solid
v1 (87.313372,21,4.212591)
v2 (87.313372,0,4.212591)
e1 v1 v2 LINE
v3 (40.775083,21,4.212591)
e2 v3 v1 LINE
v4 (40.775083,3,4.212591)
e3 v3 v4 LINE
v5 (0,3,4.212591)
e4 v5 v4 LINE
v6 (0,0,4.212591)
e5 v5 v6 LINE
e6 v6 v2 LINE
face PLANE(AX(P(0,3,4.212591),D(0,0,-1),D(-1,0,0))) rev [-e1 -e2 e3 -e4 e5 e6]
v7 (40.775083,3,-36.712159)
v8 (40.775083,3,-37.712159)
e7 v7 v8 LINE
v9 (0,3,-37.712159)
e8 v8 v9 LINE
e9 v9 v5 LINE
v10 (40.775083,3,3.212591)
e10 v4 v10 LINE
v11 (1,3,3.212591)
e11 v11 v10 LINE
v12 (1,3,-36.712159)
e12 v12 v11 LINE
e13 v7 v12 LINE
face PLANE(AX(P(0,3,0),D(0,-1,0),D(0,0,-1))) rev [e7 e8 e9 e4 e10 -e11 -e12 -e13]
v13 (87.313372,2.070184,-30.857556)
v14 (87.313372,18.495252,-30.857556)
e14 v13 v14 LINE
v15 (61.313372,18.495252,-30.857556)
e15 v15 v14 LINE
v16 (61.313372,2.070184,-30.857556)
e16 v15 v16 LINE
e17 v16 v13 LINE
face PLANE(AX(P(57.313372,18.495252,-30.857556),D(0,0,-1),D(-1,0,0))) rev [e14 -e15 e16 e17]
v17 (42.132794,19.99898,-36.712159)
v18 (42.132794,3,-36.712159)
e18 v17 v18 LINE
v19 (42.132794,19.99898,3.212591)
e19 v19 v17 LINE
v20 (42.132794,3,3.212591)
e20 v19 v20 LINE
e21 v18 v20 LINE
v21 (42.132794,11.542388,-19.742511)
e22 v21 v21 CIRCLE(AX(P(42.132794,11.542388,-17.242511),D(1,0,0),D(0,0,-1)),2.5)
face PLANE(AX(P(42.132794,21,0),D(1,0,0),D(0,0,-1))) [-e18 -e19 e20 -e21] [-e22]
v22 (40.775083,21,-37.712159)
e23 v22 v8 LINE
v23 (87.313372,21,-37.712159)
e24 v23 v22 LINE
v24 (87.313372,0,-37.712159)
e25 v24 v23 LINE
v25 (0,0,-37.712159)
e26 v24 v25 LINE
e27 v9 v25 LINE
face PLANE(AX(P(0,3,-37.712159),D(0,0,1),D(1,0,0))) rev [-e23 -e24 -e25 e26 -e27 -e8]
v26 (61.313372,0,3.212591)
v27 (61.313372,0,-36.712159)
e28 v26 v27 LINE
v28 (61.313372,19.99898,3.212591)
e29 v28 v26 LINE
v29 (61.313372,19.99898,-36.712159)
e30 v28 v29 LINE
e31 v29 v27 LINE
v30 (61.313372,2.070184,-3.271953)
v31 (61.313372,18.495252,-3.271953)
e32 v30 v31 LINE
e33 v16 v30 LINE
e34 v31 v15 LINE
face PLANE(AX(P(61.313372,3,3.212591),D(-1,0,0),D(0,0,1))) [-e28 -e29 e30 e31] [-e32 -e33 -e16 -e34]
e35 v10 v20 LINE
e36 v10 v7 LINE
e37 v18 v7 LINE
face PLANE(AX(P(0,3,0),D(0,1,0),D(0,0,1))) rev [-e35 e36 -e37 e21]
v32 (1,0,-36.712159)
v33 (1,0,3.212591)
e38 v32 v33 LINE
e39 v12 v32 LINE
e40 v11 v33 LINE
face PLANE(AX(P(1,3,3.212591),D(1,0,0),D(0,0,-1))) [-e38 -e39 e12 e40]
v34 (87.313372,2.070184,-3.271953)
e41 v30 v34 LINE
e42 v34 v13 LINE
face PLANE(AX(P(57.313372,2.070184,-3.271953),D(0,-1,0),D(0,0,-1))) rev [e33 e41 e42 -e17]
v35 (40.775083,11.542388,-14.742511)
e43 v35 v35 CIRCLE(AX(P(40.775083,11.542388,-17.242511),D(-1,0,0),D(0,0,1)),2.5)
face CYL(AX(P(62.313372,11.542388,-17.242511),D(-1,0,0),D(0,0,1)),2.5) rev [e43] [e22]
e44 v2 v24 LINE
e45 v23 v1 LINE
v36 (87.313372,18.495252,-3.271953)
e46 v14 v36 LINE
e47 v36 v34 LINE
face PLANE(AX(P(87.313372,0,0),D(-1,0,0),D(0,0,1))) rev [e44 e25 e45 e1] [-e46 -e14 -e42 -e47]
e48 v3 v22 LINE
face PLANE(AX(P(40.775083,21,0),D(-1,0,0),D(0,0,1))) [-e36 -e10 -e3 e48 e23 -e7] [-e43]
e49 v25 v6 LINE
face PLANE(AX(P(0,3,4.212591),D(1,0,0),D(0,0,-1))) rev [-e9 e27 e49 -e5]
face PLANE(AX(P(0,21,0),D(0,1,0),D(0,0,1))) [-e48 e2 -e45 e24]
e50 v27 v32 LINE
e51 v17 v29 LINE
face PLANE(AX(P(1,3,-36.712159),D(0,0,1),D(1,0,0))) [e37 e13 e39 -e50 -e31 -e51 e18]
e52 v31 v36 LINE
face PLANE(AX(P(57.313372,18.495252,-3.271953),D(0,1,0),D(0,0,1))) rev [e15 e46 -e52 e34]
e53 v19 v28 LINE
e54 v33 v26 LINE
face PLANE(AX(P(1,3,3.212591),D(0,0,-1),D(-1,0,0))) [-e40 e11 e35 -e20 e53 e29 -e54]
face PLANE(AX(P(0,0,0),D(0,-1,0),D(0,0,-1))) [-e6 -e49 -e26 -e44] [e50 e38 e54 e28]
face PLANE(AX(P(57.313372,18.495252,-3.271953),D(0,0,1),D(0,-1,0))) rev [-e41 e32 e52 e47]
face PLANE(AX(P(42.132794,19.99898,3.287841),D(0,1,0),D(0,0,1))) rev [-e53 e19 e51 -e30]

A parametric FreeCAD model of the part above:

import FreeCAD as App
import Part
import Sketcher
from FreeCAD import Vector


def add_polygon(sketch, points):
    """Adds a closed chain of lines whose ends are joined by coincident constraints."""
    first, n = sketch.GeometryCount, len(points)
    for a, b in zip(points, points[1:] + points[:1]):
        sketch.addGeometry(Part.LineSegment(App.Vector(*a, 0), App.Vector(*b, 0)), False)
    for i in range(n):
        sketch.addConstraint(Sketcher.Constraint("Coincident", first + i, 2, first + (i + 1) % n, 1))

doc = App.newDocument("Part")
body = doc.addObject("PartDesign::Body", "Body")

# Sketch on XZ plane
sketch1 = body.newObject("Sketcher::SketchObject", "Sketch")
sketch1.AttachmentSupport = (doc.getObject("XZ_Plane"), [""])
sketch1.MapMode = "FlatFace"
add_polygon(sketch1, [(0, -37.712159), (0, 4.212591), (62.313372, 4.212591), (62.313372, -37.712159)])  # lines 0-3
add_polygon(sketch1, [(61.313372, 3.212591), (1, 3.212591), (1, -36.712159), (61.313372, -36.712159)])  # lines 4-7
sketch1.addConstraint(Sketcher.Constraint("Vertical", 0))
sketch1.addConstraint(Sketcher.Constraint("Horizontal", 1))
sketch1.addConstraint(Sketcher.Constraint("Vertical", 2))
sketch1.addConstraint(Sketcher.Constraint("Horizontal", 3))
sketch1.addConstraint(Sketcher.Constraint("Horizontal", 4))
sketch1.addConstraint(Sketcher.Constraint("Vertical", 5))
sketch1.addConstraint(Sketcher.Constraint("Horizontal", 6))
sketch1.addConstraint(Sketcher.Constraint("Vertical", 7))
sketch1.addConstraint(Sketcher.Constraint("PointOnObject", 0, 2, -2))
sketch1.addConstraint(Sketcher.Constraint("DistanceX", -1, 1, 4, 2, 1.0))
sketch1.addConstraint(Sketcher.Constraint("DistanceY", 4, 2, 0, 2, 1.0))
sketch1.addConstraint(Sketcher.Constraint("DistanceY", 3, 2, 5, 2, 1.0))
sketch1.addConstraint(Sketcher.Constraint("DistanceX", 6, 2, 2, 2, 1.0))
sketch1.addConstraint(Sketcher.Constraint("DistanceY", 0, 1, 0, 2, 41.92475))
sketch1.addConstraint(Sketcher.Constraint("DistanceX", 1, 1, 1, 2, 62.313372))
sketch1.addConstraint(Sketcher.Constraint("DistanceY", -1, 1, 0, 2, 4.212591))
pad1 = body.newObject("PartDesign::Pad", "Pad")
pad1.Profile = sketch1
pad1.Length = 3
pad1.Reversed = True

# Sketch on XZ plane
sketch2 = body.newObject("Sketcher::SketchObject", "Sketch001")
sketch2.AttachmentSupport = (doc.getObject("XZ_Plane"), [""])
sketch2.MapMode = "FlatFace"
sketch2.AttachmentOffset = App.Placement(Vector(0, 0, -3), App.Rotation())
add_polygon(sketch2, [(62.313372, -37.712159), (40.775083, -37.712159), (40.775083, 4.212591), (62.313372, 4.212591)])  # lines 0-3
add_polygon(sketch2, [(42.132794, 3.212591), (42.132794, -36.712159), (61.313372, -36.712159), (61.313372, 3.212591)])  # lines 4-7
sketch2.addConstraint(Sketcher.Constraint("Horizontal", 0))
sketch2.addConstraint(Sketcher.Constraint("Vertical", 1))
sketch2.addConstraint(Sketcher.Constraint("Horizontal", 2))
sketch2.addConstraint(Sketcher.Constraint("Vertical", 3))
sketch2.addConstraint(Sketcher.Constraint("Vertical", 4))
sketch2.addConstraint(Sketcher.Constraint("Horizontal", 5))
sketch2.addConstraint(Sketcher.Constraint("Vertical", 6))
sketch2.addConstraint(Sketcher.Constraint("Horizontal", 7))
sketch2.addConstraint(Sketcher.Constraint("DistanceY", 0, 2, 4, 2, 1.0))
sketch2.addConstraint(Sketcher.Constraint("DistanceX", 5, 2, 3, 2, 1.0))
sketch2.addConstraint(Sketcher.Constraint("DistanceY", 6, 2, 2, 2, 1.0))
sketch2.addConstraint(Sketcher.Constraint("DistanceX", 0, 2, 0, 1, 21.53829))
sketch2.addConstraint(Sketcher.Constraint("DistanceX", 5, 1, 5, 2, 19.180578))
sketch2.addConstraint(Sketcher.Constraint("DistanceY", 1, 1, 1, 2, 41.92475))
sketch2.addConstraint(Sketcher.Constraint("DistanceY", 0, 2, -1, 1, 37.712159))
sketch2.addConstraint(Sketcher.Constraint("DistanceX", -1, 1, 0, 2, 40.775083))
pad2 = body.newObject("PartDesign::Pad", "Pad001")
pad2.Profile = sketch2
pad2.Length = 18
pad2.Reversed = True

# Sketch on YZ plane
sketch3 = body.newObject("Sketcher::SketchObject", "Sketch002")
sketch3.AttachmentSupport = (doc.getObject("YZ_Plane"), [""])
sketch3.MapMode = "FlatFace"
sketch3.AttachmentOffset = App.Placement(Vector(0, 0, 40.775083), App.Rotation())
sketch3.addGeometry(Part.Circle(Vector(11.542388, -17.242511, 0), Vector(0, 0, 1), 2.5), False)
sketch3.addConstraint(Sketcher.Constraint("Diameter", 0, 5.0))
sketch3.addConstraint(Sketcher.Constraint("DistanceY", 0, 3, -1, 1, 17.242511))
sketch3.addConstraint(Sketcher.Constraint("DistanceX", -1, 1, 0, 3, 11.542388))
pocket1 = body.newObject("PartDesign::Pocket", "Pocket")
pocket1.Profile = sketch3
pocket1.Type = "ThroughAll"
pocket1.Reversed = True

# Sketch on XY plane
sketch4 = body.newObject("Sketcher::SketchObject", "Sketch003")
sketch4.AttachmentSupport = (doc.getObject("XY_Plane"), [""])
sketch4.MapMode = "FlatFace"
sketch4.AttachmentOffset = App.Placement(Vector(0, 0, -36.712159), App.Rotation())
add_polygon(sketch4, [(42.132794, 21), (42.132794, 19.99898), (61.313372, 19.99898), (61.313372, 21)])  # lines 0-3
sketch4.addConstraint(Sketcher.Constraint("Vertical", 0))
sketch4.addConstraint(Sketcher.Constraint("Horizontal", 1))
sketch4.addConstraint(Sketcher.Constraint("Vertical", 2))
sketch4.addConstraint(Sketcher.Constraint("Horizontal", 3))
sketch4.addConstraint(Sketcher.Constraint("DistanceY", -1, 1, 2, 2, 21.0))
sketch4.addConstraint(Sketcher.Constraint("DistanceX", 1, 1, 1, 2, 19.180578))
sketch4.addConstraint(Sketcher.Constraint("DistanceY", 0, 2, 0, 1, 1.00102))
sketch4.addConstraint(Sketcher.Constraint("DistanceX", -1, 1, 0, 2, 42.132794))
pad3 = body.newObject("PartDesign::Pad", "Pad002")
pad3.Profile = sketch4
pad3.Length = 40

# Sketch on YZ plane
sketch5 = body.newObject("Sketcher::SketchObject", "Sketch004")
sketch5.AttachmentSupport = (doc.getObject("YZ_Plane"), [""])
sketch5.MapMode = "FlatFace"
sketch5.AttachmentOffset = App.Placement(Vector(0, 0, 62.313372), App.Rotation())
add_polygon(sketch5, [(18.495252, -3.271953), (2.070184, -3.271953), (2.070184, -30.857556), (18.495252, -30.857556)])  # lines 0-3
sketch5.addConstraint(Sketcher.Constraint("Horizontal", 0))
sketch5.addConstraint(Sketcher.Constraint("Vertical", 1))
sketch5.addConstraint(Sketcher.Constraint("Horizontal", 2))
sketch5.addConstraint(Sketcher.Constraint("Vertical", 3))
sketch5.addConstraint(Sketcher.Constraint("DistanceX", 0, 2, 0, 1, 16.425068))
sketch5.addConstraint(Sketcher.Constraint("DistanceY", 1, 2, 1, 1, 27.585603))
sketch5.addConstraint(Sketcher.Constraint("DistanceX", -1, 1, 0, 2, 2.070184))
sketch5.addConstraint(Sketcher.Constraint("DistanceY", 0, 2, -1, 1, 3.271953))
pocket2 = body.newObject("PartDesign::Pocket", "Pocket001")
pocket2.Profile = sketch5
pocket2.Length = 5

# Sketch on YZ plane
sketch6 = body.newObject("Sketcher::SketchObject", "Sketch005")
sketch6.AttachmentSupport = (doc.getObject("YZ_Plane"), [""])
sketch6.MapMode = "FlatFace"
sketch6.AttachmentOffset = App.Placement(Vector(0, 0, 62.313372), App.Rotation())
add_polygon(sketch6, [(21, 4.212591), (0, 4.212591), (0, -37.712159), (21, -37.712159)])  # lines 0-3
add_polygon(sketch6, [(2.070184, -30.857556), (2.070184, -3.271953), (18.495252, -3.271953), (18.495252, -30.857556)])  # lines 4-7
sketch6.addConstraint(Sketcher.Constraint("Horizontal", 0))
sketch6.addConstraint(Sketcher.Constraint("Vertical", 1))
sketch6.addConstraint(Sketcher.Constraint("Horizontal", 2))
sketch6.addConstraint(Sketcher.Constraint("Vertical", 3))
sketch6.addConstraint(Sketcher.Constraint("Vertical", 4))
sketch6.addConstraint(Sketcher.Constraint("Horizontal", 5))
sketch6.addConstraint(Sketcher.Constraint("Vertical", 6))
sketch6.addConstraint(Sketcher.Constraint("Horizontal", 7))
sketch6.addConstraint(Sketcher.Constraint("PointOnObject", 0, 2, -2))
sketch6.addConstraint(Sketcher.Constraint("DistanceX", 0, 2, 0, 1, 21.0))
sketch6.addConstraint(Sketcher.Constraint("DistanceX", 5, 1, 5, 2, 16.425068))
sketch6.addConstraint(Sketcher.Constraint("DistanceY", 1, 2, 1, 1, 41.92475))
sketch6.addConstraint(Sketcher.Constraint("DistanceY", 4, 1, 4, 2, 27.585603))
sketch6.addConstraint(Sketcher.Constraint("DistanceY", -1, 1, 0, 2, 4.212591))
sketch6.addConstraint(Sketcher.Constraint("DistanceX", -1, 1, 4, 2, 2.070184))
sketch6.addConstraint(Sketcher.Constraint("DistanceY", 4, 2, -1, 1, 3.271953))
pad4 = body.newObject("PartDesign::Pad", "Pad003")
pad4.Profile = sketch6
pad4.Length = 25

doc.recompute()
